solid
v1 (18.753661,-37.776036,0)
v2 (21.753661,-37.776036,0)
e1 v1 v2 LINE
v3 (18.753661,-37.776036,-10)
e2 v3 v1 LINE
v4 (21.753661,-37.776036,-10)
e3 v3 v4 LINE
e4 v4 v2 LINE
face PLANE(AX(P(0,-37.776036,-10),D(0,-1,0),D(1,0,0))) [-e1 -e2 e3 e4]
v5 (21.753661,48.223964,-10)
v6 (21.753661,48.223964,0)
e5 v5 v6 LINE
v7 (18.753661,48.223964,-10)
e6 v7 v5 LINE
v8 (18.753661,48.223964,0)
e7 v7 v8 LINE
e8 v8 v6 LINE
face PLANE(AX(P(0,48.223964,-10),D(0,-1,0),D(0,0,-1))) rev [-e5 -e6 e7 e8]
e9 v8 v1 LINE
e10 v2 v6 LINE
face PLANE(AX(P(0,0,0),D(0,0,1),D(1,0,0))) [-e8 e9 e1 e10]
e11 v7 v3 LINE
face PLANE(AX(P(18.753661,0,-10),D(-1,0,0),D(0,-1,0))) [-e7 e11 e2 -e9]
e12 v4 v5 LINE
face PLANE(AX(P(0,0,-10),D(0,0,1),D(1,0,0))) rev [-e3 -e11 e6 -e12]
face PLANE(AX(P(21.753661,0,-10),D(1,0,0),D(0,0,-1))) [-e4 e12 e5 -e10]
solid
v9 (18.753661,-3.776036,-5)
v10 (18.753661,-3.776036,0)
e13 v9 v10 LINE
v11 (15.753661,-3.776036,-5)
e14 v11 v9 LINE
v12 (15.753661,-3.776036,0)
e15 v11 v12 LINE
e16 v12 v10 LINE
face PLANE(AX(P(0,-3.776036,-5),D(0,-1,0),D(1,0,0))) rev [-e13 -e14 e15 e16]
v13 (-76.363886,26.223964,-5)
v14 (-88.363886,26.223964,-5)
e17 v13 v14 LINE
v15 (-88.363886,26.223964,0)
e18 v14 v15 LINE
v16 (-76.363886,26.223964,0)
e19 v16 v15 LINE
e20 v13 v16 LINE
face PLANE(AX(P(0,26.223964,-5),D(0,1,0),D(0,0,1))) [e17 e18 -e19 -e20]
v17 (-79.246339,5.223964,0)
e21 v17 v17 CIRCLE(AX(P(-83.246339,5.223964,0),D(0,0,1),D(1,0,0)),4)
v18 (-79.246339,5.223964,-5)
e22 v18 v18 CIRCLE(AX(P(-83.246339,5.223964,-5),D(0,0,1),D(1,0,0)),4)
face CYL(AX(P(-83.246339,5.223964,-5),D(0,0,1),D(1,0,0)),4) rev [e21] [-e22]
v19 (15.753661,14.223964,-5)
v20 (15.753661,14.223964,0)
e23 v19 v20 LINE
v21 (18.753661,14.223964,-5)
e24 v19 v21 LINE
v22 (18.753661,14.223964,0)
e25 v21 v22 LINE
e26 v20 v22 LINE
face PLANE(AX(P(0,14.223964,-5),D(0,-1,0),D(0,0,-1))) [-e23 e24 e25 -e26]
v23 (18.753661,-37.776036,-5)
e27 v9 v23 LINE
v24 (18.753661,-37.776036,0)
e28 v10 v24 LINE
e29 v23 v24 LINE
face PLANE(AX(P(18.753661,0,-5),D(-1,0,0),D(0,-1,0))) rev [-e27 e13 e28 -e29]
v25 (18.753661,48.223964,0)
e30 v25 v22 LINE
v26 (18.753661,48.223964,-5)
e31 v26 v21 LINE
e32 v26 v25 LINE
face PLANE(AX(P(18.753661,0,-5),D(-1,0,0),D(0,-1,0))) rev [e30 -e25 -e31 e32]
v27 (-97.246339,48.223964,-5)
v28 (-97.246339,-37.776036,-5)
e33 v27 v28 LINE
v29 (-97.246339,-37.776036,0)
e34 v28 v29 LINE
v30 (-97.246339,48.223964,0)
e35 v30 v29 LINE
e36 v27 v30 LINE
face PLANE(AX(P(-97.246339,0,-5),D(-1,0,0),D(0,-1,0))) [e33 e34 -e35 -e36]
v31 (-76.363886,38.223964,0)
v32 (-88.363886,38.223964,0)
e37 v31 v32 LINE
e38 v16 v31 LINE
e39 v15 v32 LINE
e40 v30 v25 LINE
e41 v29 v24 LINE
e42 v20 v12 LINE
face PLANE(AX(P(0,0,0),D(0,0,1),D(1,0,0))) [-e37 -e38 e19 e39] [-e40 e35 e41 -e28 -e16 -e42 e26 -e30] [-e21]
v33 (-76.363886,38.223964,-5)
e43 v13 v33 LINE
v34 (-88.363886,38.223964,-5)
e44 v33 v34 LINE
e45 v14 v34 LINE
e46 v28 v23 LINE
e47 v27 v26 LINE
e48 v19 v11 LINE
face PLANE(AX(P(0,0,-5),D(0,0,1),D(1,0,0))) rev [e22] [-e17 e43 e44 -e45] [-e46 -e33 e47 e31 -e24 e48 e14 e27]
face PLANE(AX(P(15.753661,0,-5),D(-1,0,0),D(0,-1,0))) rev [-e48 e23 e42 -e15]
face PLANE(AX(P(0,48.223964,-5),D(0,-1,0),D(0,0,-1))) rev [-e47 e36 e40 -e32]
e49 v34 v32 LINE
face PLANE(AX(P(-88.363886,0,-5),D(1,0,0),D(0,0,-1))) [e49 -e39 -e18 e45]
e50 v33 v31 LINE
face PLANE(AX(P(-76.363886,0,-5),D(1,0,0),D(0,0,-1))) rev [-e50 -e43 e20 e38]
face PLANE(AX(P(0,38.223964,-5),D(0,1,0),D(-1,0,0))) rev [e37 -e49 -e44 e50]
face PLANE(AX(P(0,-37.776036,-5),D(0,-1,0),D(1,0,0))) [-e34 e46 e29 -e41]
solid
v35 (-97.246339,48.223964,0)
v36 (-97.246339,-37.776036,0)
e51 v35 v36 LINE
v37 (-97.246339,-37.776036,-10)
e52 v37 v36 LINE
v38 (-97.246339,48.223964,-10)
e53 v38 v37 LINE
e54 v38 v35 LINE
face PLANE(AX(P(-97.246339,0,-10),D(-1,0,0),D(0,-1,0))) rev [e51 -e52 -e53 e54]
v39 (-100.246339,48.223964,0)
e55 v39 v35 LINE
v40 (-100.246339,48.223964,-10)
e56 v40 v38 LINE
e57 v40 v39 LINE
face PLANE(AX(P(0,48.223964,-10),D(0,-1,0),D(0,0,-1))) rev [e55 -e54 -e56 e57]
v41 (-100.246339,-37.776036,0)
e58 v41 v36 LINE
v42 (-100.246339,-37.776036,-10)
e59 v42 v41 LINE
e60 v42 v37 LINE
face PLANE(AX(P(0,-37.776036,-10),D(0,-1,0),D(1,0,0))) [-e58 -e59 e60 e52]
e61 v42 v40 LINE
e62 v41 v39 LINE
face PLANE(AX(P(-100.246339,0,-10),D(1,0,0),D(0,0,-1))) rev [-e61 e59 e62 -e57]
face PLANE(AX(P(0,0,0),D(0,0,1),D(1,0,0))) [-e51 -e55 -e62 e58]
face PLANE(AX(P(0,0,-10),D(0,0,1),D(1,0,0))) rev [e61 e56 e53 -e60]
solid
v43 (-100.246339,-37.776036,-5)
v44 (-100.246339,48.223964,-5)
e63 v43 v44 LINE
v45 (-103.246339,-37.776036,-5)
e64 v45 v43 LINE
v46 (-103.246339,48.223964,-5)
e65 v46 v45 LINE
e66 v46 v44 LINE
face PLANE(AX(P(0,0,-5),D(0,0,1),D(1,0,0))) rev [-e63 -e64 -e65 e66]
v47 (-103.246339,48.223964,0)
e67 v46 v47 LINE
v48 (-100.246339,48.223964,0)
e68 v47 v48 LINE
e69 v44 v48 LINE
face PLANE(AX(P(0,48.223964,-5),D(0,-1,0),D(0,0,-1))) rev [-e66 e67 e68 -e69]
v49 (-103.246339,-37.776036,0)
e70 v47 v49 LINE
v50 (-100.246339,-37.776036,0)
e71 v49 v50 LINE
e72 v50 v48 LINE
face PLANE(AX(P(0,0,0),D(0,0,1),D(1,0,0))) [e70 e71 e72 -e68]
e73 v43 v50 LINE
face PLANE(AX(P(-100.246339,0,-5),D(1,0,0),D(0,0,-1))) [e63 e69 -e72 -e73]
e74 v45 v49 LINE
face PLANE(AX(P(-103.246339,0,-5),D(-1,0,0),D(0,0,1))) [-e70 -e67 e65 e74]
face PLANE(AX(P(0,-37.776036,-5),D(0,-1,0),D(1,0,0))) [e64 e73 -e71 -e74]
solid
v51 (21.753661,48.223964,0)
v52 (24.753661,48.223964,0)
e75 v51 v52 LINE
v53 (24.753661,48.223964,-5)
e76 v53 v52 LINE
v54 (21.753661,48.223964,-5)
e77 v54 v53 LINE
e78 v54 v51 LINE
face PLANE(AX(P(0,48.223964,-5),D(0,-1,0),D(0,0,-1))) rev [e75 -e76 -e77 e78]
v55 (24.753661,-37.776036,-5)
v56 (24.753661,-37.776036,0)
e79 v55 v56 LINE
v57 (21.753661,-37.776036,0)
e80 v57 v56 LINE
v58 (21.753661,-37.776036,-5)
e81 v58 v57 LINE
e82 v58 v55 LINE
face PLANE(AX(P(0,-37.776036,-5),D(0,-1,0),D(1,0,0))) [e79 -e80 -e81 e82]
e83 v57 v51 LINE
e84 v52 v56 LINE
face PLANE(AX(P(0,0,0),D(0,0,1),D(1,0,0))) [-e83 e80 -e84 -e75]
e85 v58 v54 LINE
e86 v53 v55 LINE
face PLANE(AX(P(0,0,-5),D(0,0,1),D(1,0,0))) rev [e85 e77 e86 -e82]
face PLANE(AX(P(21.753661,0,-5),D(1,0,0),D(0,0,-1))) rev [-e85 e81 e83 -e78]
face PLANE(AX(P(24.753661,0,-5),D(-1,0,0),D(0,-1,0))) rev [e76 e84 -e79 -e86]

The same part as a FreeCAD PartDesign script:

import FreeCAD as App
import Part
import Sketcher
from FreeCAD import Vector
Q = App.Units.Quantity


def add_polygon(sketch, points):
    """Adds a closed chain of lines whose ends are joined by coincident constraints."""
    first, n = sketch.GeometryCount, len(points)
    for a, b in zip(points, points[1:] + points[:1]):
        sketch.addGeometry(Part.LineSegment(App.Vector(*a, 0), App.Vector(*b, 0)), False)
    for i in range(n):
        sketch.addConstraint(Sketcher.Constraint("Coincident", first + i, 2, first + (i + 1) % n, 1))

doc = App.newDocument("Part")
body = doc.addObject("PartDesign::Body", "Body")

sketch1 = body.newObject("Sketcher::SketchObject", "Sketch")
sketch1.AttachmentSupport = (doc.getObject("XY_Plane"), [""])
sketch1.MapMode = "FlatFace"
add_polygon(sketch1, [(18.8, 48.2), (-97.2, 48.2), (-97.2, -37.8), (18.8, -37.8), (18.8, -3.8), (15.8, -3.8), (15.8, 14.2), (18.8, 14.2)])
sketch1.addGeometry(Part.Circle(Vector(-83.2, 5.2, 0), Vector(0, 0, 1), 4), False)
add_polygon(sketch1, [(-76.4, 26.2), (-88.4, 26.2), (-88.4, 38.2), (-76.4, 38.2)])
sketch1.addConstraint(Sketcher.Constraint("Horizontal", 0))
sketch1.addConstraint(Sketcher.Constraint("Vertical", 1))
sketch1.addConstraint(Sketcher.Constraint("Horizontal", 2))
sketch1.addConstraint(Sketcher.Constraint("Vertical", 3))
sketch1.addConstraint(Sketcher.Constraint("Horizontal", 4))
sketch1.addConstraint(Sketcher.Constraint("Vertical", 5))
sketch1.addConstraint(Sketcher.Constraint("Horizontal", 6))
sketch1.addConstraint(Sketcher.Constraint("Vertical", 7))
sketch1.addConstraint(Sketcher.Constraint("Horizontal", 9))
sketch1.addConstraint(Sketcher.Constraint("Vertical", 10))
sketch1.addConstraint(Sketcher.Constraint("Horizontal", 11))
sketch1.addConstraint(Sketcher.Constraint("Vertical", 12))
sketch1.addConstraint(Sketcher.Constraint("Vertical", 3, 2, 6, 2))
sketch1.addConstraint(Sketcher.Constraint("Equal", 3, 7))
sketch1.addConstraint(Sketcher.Constraint("Equal", 11, 10))
sketch1.addConstraint(Sketcher.Constraint("Diameter", 8, Q("8 mm")))
sketch1.addConstraint(Sketcher.Constraint("DistanceX", 0, 2, 0, 1, Q("116 mm")))
sketch1.addConstraint(Sketcher.Constraint("DistanceX", 4, 2, 4, 1, Q("3 mm")))
sketch1.addConstraint(Sketcher.Constraint("DistanceX", 9, 2, 9, 1, Q("12 mm")))
sketch1.addConstraint(Sketcher.Constraint("DistanceY", 1, 2, 1, 1, Q("86 mm")))
sketch1.addConstraint(Sketcher.Constraint("DistanceY", 3, 1, 3, 2, Q("34 mm")))
sketch1.addConstraint(Sketcher.Constraint("DistanceX", 0, 2, 8, 3, Q("14 mm")))
sketch1.addConstraint(Sketcher.Constraint("DistanceY", 8, 3, 0, 2, Q("43 mm")))
sketch1.addConstraint(Sketcher.Constraint("DistanceY", 8, 3, 9, 2, Q("21 mm")))
sketch1.addConstraint(Sketcher.Constraint("DistanceX", 8, 3, -1, 1, Q("83.246339 mm")))
sketch1.addConstraint(Sketcher.Constraint("DistanceY", -1, 1, 8, 3, Q("5.223964 mm")))
sketch1.addConstraint(Sketcher.Constraint("DistanceX", 9, 2, -1, 1, Q("88.363886 mm")))
pad1 = body.newObject("PartDesign::Pad", "Pad")
pad1.Profile = sketch1
pad1.Length = 5
pad1.Reversed = True
body2 = doc.addObject("PartDesign::Body", "Body001")

sketch2 = body2.newObject("Sketcher::SketchObject", "Sketch001")
sketch2.AttachmentSupport = (doc.getObject("XY_Plane001"), [""])
sketch2.MapMode = "FlatFace"
add_polygon(sketch2, [(-103.2, 48.2), (-103.2, -37.8), (-100.2, -37.8), (-100.2, 48.2)])
sketch2.addConstraint(Sketcher.Constraint("Vertical", 0))
sketch2.addConstraint(Sketcher.Constraint("Horizontal", 1))
sketch2.addConstraint(Sketcher.Constraint("Vertical", 2))
sketch2.addConstraint(Sketcher.Constraint("Horizontal", 3))
sketch2.addConstraint(Sketcher.Constraint("DistanceX", 1, 1, 1, 2, Q("3 mm")))
sketch2.addConstraint(Sketcher.Constraint("DistanceY", 0, 2, 0, 1, Q("86 mm")))
sketch2.addConstraint(Sketcher.Constraint("DistanceX", 0, 2, -1, 1, Q("103.246339 mm")))
sketch2.addConstraint(Sketcher.Constraint("DistanceY", 0, 2, -1, 1, Q("37.776036 mm")))
pad2 = body2.newObject("PartDesign::Pad", "Pad001")
pad2.Profile = sketch2
pad2.Length = 5
pad2.Reversed = True
body3 = doc.addObject("PartDesign::Body", "Body002")

sketch3 = body3.newObject("Sketcher::SketchObject", "Sketch002")
sketch3.AttachmentSupport = (doc.getObject("XY_Plane002"), [""])
sketch3.MapMode = "FlatFace"
add_polygon(sketch3, [(21.8, 48.2), (21.8, -37.8), (24.8, -37.8), (24.8, 48.2)])
sketch3.addConstraint(Sketcher.Constraint("Vertical", 0))
sketch3.addConstraint(Sketcher.Constraint("Horizontal", 1))
sketch3.addConstraint(Sketcher.Constraint("Vertical", 2))
sketch3.addConstraint(Sketcher.Constraint("Horizontal", 3))
sketch3.addConstraint(Sketcher.Constraint("DistanceX", 1, 1, 1, 2, Q("3 mm")))
sketch3.addConstraint(Sketcher.Constraint("DistanceY", 0, 2, 0, 1, Q("86 mm")))
sketch3.addConstraint(Sketcher.Constraint("DistanceX", -1, 1, 0, 2, Q("21.753661 mm")))
sketch3.addConstraint(Sketcher.Constraint("DistanceY", 0, 2, -1, 1, Q("37.776036 mm")))
pad3 = body3.newObject("PartDesign::Pad", "Pad002")
pad3.Profile = sketch3
pad3.Length = 5
pad3.Reversed = True
body4 = doc.addObject("PartDesign::Body", "Body003")

sketch4 = body4.newObject("Sketcher::SketchObject", "Sketch003")
sketch4.AttachmentSupport = (doc.getObject("XY_Plane003"), [""])
sketch4.MapMode = "FlatFace"
add_polygon(sketch4, [(-100.2, 48.2), (-100.2, -37.8), (-97.2, -37.8), (-97.2, 48.2)])
sketch4.addConstraint(Sketcher.Constraint("Vertical", 0))
sketch4.addConstraint(Sketcher.Constraint("Horizontal", 1))
sketch4.addConstraint(Sketcher.Constraint("Vertical", 2))
sketch4.addConstraint(Sketcher.Constraint("Horizontal", 3))
sketch4.addConstraint(Sketcher.Constraint("DistanceX", 1, 1, 1, 2, Q("3 mm")))
sketch4.addConstraint(Sketcher.Constraint("DistanceY", 0, 2, 0, 1, Q("86 mm")))
sketch4.addConstraint(Sketcher.Constraint("DistanceX", 0, 2, -1, 1, Q("100.246339 mm")))
sketch4.addConstraint(Sketcher.Constraint("DistanceY", 0, 2, -1, 1, Q("37.776036 mm")))
pad4 = body4.newObject("PartDesign::Pad", "Pad003")
pad4.Profile = sketch4
pad4.Length = 10
pad4.Reversed = True
body5 = doc.addObject("PartDesign::Body", "Body004")

sketch5 = body5.newObject("Sketcher::SketchObject", "Sketch004")
sketch5.AttachmentSupport = (doc.getObject("XY_Plane004"), [""])
sketch5.MapMode = "FlatFace"
add_polygon(sketch5, [(21.8, 48.2), (18.8, 48.2), (18.8, -37.8), (21.8, -37.8)])
sketch5.addConstraint(Sketcher.Constraint("Horizontal", 0))
sketch5.addConstraint(Sketcher.Constraint("Vertical", 1))
sketch5.addConstraint(Sketcher.Constraint("Horizontal", 2))
sketch5.addConstraint(Sketcher.Constraint("Vertical", 3))
sketch5.addConstraint(Sketcher.Constraint("DistanceX", 0, 2, 0, 1, Q("3 mm")))
sketch5.addConstraint(Sketcher.Constraint("DistanceY", 1, 2, 1, 1, Q("86 mm")))
sketch5.addConstraint(Sketcher.Constraint("DistanceX", -1, 1, 0, 2, Q("18.753661 mm")))
sketch5.addConstraint(Sketcher.Constraint("DistanceY", -1, 1, 0, 2, Q("48.223964 mm")))
pad5 = body5.newObject("PartDesign::Pad", "Pad004")
pad5.Profile = sketch5
pad5.Length = 10
pad5.Reversed = True

doc.recompute()
